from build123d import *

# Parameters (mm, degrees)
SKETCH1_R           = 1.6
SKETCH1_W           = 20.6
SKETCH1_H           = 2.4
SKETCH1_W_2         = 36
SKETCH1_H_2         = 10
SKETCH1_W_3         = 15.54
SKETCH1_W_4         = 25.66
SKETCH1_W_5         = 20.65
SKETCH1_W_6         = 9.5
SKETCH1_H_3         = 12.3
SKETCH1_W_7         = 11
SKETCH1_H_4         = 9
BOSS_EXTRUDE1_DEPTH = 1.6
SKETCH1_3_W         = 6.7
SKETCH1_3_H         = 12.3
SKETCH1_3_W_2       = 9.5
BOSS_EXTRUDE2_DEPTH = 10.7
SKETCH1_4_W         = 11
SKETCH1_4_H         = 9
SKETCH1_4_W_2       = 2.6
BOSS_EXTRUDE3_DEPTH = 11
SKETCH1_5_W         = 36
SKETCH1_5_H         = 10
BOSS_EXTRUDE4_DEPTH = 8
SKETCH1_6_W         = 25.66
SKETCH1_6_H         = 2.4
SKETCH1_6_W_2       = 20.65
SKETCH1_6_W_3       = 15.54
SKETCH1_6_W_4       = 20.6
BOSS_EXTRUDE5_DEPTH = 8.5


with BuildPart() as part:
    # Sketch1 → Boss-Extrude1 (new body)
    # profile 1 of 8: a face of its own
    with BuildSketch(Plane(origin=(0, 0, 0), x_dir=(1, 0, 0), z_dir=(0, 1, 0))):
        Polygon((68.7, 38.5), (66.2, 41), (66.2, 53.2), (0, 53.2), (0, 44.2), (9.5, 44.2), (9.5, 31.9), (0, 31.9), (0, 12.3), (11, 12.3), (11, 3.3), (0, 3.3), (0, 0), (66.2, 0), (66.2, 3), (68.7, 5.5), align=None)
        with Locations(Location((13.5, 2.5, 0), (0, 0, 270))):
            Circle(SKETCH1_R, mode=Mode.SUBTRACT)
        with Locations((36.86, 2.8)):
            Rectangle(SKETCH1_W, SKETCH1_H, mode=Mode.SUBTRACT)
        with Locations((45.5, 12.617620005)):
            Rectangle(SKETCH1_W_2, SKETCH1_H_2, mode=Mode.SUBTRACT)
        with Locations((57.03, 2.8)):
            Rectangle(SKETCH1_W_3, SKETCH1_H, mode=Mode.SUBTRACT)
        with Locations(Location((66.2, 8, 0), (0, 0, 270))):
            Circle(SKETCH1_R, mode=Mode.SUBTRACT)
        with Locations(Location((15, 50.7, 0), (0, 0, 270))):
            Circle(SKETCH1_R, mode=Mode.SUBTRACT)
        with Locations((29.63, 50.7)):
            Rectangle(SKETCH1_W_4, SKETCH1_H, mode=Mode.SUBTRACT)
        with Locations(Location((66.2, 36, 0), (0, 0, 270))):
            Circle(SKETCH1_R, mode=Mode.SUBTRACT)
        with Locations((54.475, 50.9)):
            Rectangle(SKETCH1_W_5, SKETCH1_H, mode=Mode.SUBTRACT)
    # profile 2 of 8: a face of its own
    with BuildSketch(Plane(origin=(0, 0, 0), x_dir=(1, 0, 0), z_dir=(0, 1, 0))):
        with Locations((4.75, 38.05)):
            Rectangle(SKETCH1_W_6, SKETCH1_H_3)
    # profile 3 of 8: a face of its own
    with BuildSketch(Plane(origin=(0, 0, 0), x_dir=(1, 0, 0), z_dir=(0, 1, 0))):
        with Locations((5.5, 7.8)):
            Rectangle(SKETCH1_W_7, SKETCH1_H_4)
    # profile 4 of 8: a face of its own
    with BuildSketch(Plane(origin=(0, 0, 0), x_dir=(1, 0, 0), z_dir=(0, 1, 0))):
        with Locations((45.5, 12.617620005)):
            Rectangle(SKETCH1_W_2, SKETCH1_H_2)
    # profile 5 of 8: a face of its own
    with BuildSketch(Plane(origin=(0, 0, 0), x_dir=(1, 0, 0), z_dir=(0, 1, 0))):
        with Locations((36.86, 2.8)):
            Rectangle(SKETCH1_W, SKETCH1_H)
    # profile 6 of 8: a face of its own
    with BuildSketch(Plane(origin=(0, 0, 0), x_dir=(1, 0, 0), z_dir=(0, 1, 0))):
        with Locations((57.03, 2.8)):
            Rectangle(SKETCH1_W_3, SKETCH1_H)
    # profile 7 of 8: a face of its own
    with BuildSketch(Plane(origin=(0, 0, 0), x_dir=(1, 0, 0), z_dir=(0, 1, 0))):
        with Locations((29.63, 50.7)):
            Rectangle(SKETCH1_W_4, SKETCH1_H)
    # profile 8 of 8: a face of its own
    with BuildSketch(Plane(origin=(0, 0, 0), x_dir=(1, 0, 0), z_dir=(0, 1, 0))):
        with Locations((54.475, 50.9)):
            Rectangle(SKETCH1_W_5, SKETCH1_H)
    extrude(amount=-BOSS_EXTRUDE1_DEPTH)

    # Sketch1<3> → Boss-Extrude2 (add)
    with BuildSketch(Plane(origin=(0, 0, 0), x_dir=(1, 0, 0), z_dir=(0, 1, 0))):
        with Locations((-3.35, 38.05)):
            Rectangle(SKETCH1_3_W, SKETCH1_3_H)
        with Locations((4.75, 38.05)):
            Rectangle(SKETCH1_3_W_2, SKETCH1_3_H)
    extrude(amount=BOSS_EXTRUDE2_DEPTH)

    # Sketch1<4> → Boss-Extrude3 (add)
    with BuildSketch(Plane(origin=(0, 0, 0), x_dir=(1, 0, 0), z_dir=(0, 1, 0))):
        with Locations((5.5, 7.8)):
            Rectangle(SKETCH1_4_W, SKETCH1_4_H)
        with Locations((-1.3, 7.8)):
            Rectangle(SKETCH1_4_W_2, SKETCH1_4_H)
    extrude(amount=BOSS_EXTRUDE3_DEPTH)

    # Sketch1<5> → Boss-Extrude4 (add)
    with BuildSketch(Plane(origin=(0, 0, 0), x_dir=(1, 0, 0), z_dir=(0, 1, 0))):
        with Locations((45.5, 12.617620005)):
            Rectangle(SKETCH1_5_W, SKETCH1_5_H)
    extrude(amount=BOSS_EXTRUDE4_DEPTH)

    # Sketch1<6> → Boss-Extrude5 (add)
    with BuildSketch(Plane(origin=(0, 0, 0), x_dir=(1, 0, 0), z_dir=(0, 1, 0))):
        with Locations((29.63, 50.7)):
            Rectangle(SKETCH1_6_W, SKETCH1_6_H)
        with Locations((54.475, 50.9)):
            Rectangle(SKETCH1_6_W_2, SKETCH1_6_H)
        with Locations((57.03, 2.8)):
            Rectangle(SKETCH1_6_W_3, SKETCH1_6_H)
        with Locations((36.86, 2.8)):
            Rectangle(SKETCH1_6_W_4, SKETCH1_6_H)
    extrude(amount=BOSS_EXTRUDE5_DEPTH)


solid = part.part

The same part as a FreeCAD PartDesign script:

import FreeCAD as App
import Part
import Sketcher
from FreeCAD import Vector
Q = App.Units.Quantity

doc = App.newDocument("Part")
body = doc.addObject("PartDesign::Body", "Body")

# Sketch on XZ plane
sketch1 = doc.addObject("Sketcher::SketchObject", "Sketch")
body.addObject(sketch1)
sketch1.AttachmentSupport = (doc.XZ_Plane, [""])
sketch1.MapMode = "FlatFace"
sketch1.addGeometry([
    Part.LineSegment(Vector(68.7, -38.5, 0), Vector(66.2, -41, 0)),  # 0
    Part.LineSegment(Vector(66.2, -41, 0), Vector(66.2, -53.2, 0)),  # 1
    Part.LineSegment(Vector(66.2, -53.2, 0), Vector(0, -53.2, 0)),  # 2
    Part.LineSegment(Vector(0, -53.2, 0), Vector(0, 0, 0)),  # 3
    Part.LineSegment(Vector(0, 0, 0), Vector(66.2, 0, 0)),  # 4
    Part.LineSegment(Vector(66.2, 0, 0), Vector(66.2, -3, 0)),  # 5
    Part.LineSegment(Vector(66.2, -3, 0), Vector(68.7, -5.5, 0)),  # 6
    Part.LineSegment(Vector(68.7, -5.5, 0), Vector(68.7, -38.5, 0)),  # 7
    Part.Circle(Vector(13.5, -2.5, 0), Vector(0, 0, 1), 1.6),  # 8
    Part.Circle(Vector(66.2, -8, 0), Vector(0, 0, 1), 1.6),  # 9
    Part.Circle(Vector(15, -50.7, 0), Vector(0, 0, 1), 1.6),  # 10
    Part.Circle(Vector(66.2, -36, 0), Vector(0, 0, 1), 1.6),  # 11
], False)
sketch1.addConstraint([
    Sketcher.Constraint("Coincident", 0, 2, 1, 1),
    Sketcher.Constraint("Coincident", 1, 2, 2, 1),
    Sketcher.Constraint("Coincident", 2, 2, 3, 1),
    Sketcher.Constraint("Coincident", 3, 2, 4, 1),
    Sketcher.Constraint("Coincident", 4, 2, 5, 1),
    Sketcher.Constraint("Coincident", 5, 2, 6, 1),
    Sketcher.Constraint("Coincident", 6, 2, 7, 1),
    Sketcher.Constraint("Coincident", 7, 2, 0, 1),
    Sketcher.Constraint("Vertical", 1),
    Sketcher.Constraint("Horizontal", 2),
    Sketcher.Constraint("Vertical", 3),
    Sketcher.Constraint("Horizontal", 4),
    Sketcher.Constraint("Vertical", 5),
    Sketcher.Constraint("Vertical", 7),
    Sketcher.Constraint("Coincident", 3, 2, -1, 1),
    Sketcher.Constraint("Equal", 8, 9),
    Sketcher.Constraint("Equal", 9, 10),
    Sketcher.Constraint("Equal", 10, 11),
    Sketcher.Constraint("Perpendicular", 0, 6),
    Sketcher.Constraint("Vertical", 9, 3, 11, 3),
    Sketcher.Constraint("Vertical", 11, 3, 0, 2),
    Sketcher.Constraint("Vertical", 1, 2, 4, 2),
    Sketcher.Constraint("Equal", 0, 6),
    Sketcher.Constraint("Diameter", 8, Q("3.2 mm")),
    Sketcher.Constraint("DistanceY", 5, 2, 5, 1, Q("3 mm")),
    Sketcher.Constraint("DistanceY", 7, 2, 7, 1, Q("33 mm")),
    Sketcher.Constraint("DistanceX", 2, 2, 2, 1, Q("66.2 mm")),
    Sketcher.Constraint("DistanceY", 1, 2, 1, 1, Q("12.2 mm")),
    Sketcher.Constraint("DistanceY", 3, 1, 3, 2, Q("53.2 mm")),
    Sketcher.Constraint("DistanceY", 9, 3, -1, 1, Q("8 mm")),
    Sketcher.Constraint("DistanceX", -1, 1, 10, 3, Q("15 mm")),
    Sketcher.Constraint("DistanceY", 11, 3, -1, 1, Q("36 mm")),
    Sketcher.Constraint("DistanceX", -1, 1, 8, 3, Q("13.5 mm")),
    Sketcher.Constraint("DistanceY", 8, 3, -1, 1, Q("2.5 mm")),
    Sketcher.Constraint("DistanceY", 10, 3, -1, 1, Q("50.7 mm")),
])
pad1 = doc.addObject("PartDesign::Pad", "Pad")
body.addObject(pad1)
pad1.Profile = sketch1
pad1.Length = 1.6

# Sketch on XZ plane
sketch2 = doc.addObject("Sketcher::SketchObject", "Sketch001")
body.addObject(sketch2)
sketch2.AttachmentSupport = (doc.XZ_Plane, [""])
sketch2.MapMode = "FlatFace"
sketch2.addGeometry([
    Part.LineSegment(Vector(-7, -44, 0), Vector(-7, -32, 0)),
    Part.LineSegment(Vector(-7, -32, 0), Vector(10, -32, 0)),
    Part.LineSegment(Vector(10, -32, 0), Vector(10, -44, 0)),
    Part.LineSegment(Vector(10, -44, 0), Vector(-7, -44, 0)),
], False)
sketch2.addConstraint([
    Sketcher.Constraint("Coincident", 0, 2, 1, 1),
    Sketcher.Constraint("Coincident", 1, 2, 2, 1),
    Sketcher.Constraint("Coincident", 2, 2, 3, 1),
    Sketcher.Constraint("Coincident", 3, 2, 0, 1),
    Sketcher.Constraint("Vertical", 0),
    Sketcher.Constraint("Horizontal", 1),
    Sketcher.Constraint("Vertical", 2),
    Sketcher.Constraint("Horizontal", 3),
    Sketcher.Constraint("DistanceX", 1, 1, 1, 2, Q("16.2 mm")),
    Sketcher.Constraint("DistanceY", 0, 1, 0, 2, Q("12.3 mm")),
    Sketcher.Constraint("DistanceX", 0, 2, -1, 1, Q("6.7 mm")),
    Sketcher.Constraint("DistanceY", 0, 2, -1, 1, Q("31.9 mm")),
])
pad2 = doc.addObject("PartDesign::Pad", "Pad001")
body.addObject(pad2)
pad2.Profile = sketch2
pad2.Length = 10.7
pad2.Reversed = True

# Sketch on XZ plane
sketch3 = doc.addObject("Sketcher::SketchObject", "Sketch002")
body.addObject(sketch3)
sketch3.AttachmentSupport = (doc.XZ_Plane, [""])
sketch3.MapMode = "FlatFace"
sketch3.addGeometry([
    Part.LineSegment(Vector(11, -3, 0), Vector(11, -12, 0)),
    Part.LineSegment(Vector(11, -12, 0), Vector(-3, -12, 0)),
    Part.LineSegment(Vector(-3, -12, 0), Vector(-3, -3, 0)),
    Part.LineSegment(Vector(-3, -3, 0), Vector(11, -3, 0)),
], False)
sketch3.addConstraint([
    Sketcher.Constraint("Coincident", 0, 2, 1, 1),
    Sketcher.Constraint("Coincident", 1, 2, 2, 1),
    Sketcher.Constraint("Coincident", 2, 2, 3, 1),
    Sketcher.Constraint("Coincident", 3, 2, 0, 1),
    Sketcher.Constraint("Vertical", 0),
    Sketcher.Constraint("Horizontal", 1),
    Sketcher.Constraint("Vertical", 2),
    Sketcher.Constraint("Horizontal", 3),
    Sketcher.Constraint("DistanceY", 0, 2, 0, 1, Q("9 mm")),
    Sketcher.Constraint("DistanceX", 1, 2, 1, 1, Q("13.6 mm")),
    Sketcher.Constraint("DistanceX", -1, 1, 0, 2, Q("11 mm")),
    Sketcher.Constraint("DistanceY", 0, 2, -1, 1, Q("12.3 mm")),
])
pad3 = doc.addObject("PartDesign::Pad", "Pad002")
body.addObject(pad3)
pad3.Profile = sketch3
pad3.Length = 11
pad3.Reversed = True

# Sketch on XZ plane
sketch4 = doc.addObject("Sketcher::SketchObject", "Sketch003")
body.addObject(sketch4)
sketch4.AttachmentSupport = (doc.XZ_Plane, [""])
sketch4.MapMode = "FlatFace"
sketch4.addGeometry([
    Part.LineSegment(Vector(28, -18, 0), Vector(28, -8, 0)),
    Part.LineSegment(Vector(28, -8, 0), Vector(64, -8, 0)),
    Part.LineSegment(Vector(64, -8, 0), Vector(64, -18, 0)),
    Part.LineSegment(Vector(64, -18, 0), Vector(28, -18, 0)),
], False)
sketch4.addConstraint([
    Sketcher.Constraint("Coincident", 0, 2, 1, 1),
    Sketcher.Constraint("Coincident", 1, 2, 2, 1),
    Sketcher.Constraint("Coincident", 2, 2, 3, 1),
    Sketcher.Constraint("Coincident", 3, 2, 0, 1),
    Sketcher.Constraint("Vertical", 0),
    Sketcher.Constraint("Horizontal", 1),
    Sketcher.Constraint("Vertical", 2),
    Sketcher.Constraint("Horizontal", 3),
    Sketcher.Constraint("DistanceX", 1, 1, 1, 2, Q("36 mm")),
    Sketcher.Constraint("DistanceY", 0, 1, 0, 2, Q("10 mm")),
    Sketcher.Constraint("DistanceX", -1, 1, 0, 2, Q("27.5 mm")),
    Sketcher.Constraint("DistanceY", 0, 2, -1, 1, Q("7.61762 mm")),
])
pad4 = doc.addObject("PartDesign::Pad", "Pad003")
body.addObject(pad4)
pad4.Profile = sketch4
pad4.Length = 8
pad4.Reversed = True

# Sketch on XZ plane
sketch5 = doc.addObject("Sketcher::SketchObject", "Sketch004")
body.addObject(sketch5)
sketch5.AttachmentSupport = (doc.XZ_Plane, [""])
sketch5.MapMode = "FlatFace"
sketch5.addGeometry([
    Part.LineSegment(Vector(16.8, -51.9, 0), Vector(16.8, -49.5, 0)),  # 0
    Part.LineSegment(Vector(16.8, -49.5, 0), Vector(42.5, -49.5, 0)),  # 1
    Part.LineSegment(Vector(42.5, -49.5, 0), Vector(42.5, -51.9, 0)),  # 2
    Part.LineSegment(Vector(42.5, -51.9, 0), Vector(16.8, -51.9, 0)),  # 3
    Part.LineSegment(Vector(44.1, -52.1, 0), Vector(44.1, -49.7, 0)),  # 4
    Part.LineSegment(Vector(44.1, -49.7, 0), Vector(64.8, -49.7, 0)),  # 5
    Part.LineSegment(Vector(64.8, -49.7, 0), Vector(64.8, -52.1, 0)),  # 6
    Part.LineSegment(Vector(64.8, -52.1, 0), Vector(44.1, -52.1, 0)),  # 7
    Part.LineSegment(Vector(49.3, -4, 0), Vector(49.3, -1.6, 0)),  # 8
    Part.LineSegment(Vector(49.3, -1.6, 0), Vector(64.8, -1.6, 0)),  # 9
    Part.LineSegment(Vector(64.8, -1.6, 0), Vector(64.8, -4, 0)),  # 10
    Part.LineSegment(Vector(64.8, -4, 0), Vector(49.3, -4, 0)),  # 11
    Part.LineSegment(Vector(26.6, -4, 0), Vector(26.6, -1.6, 0)),  # 12
    Part.LineSegment(Vector(26.6, -1.6, 0), Vector(47.2, -1.6, 0)),  # 13
    Part.LineSegment(Vector(47.2, -1.6, 0), Vector(47.2, -4, 0)),  # 14
    Part.LineSegment(Vector(47.2, -4, 0), Vector(26.6, -4, 0)),  # 15
], False)
sketch5.addConstraint([
    Sketcher.Constraint("Coincident", 0, 2, 1, 1),
    Sketcher.Constraint("Coincident", 1, 2, 2, 1),
    Sketcher.Constraint("Coincident", 2, 2, 3, 1),
    Sketcher.Constraint("Coincident", 3, 2, 0, 1),
    Sketcher.Constraint("Coincident", 4, 2, 5, 1),
    Sketcher.Constraint("Coincident", 5, 2, 6, 1),
    Sketcher.Constraint("Coincident", 6, 2, 7, 1),
    Sketcher.Constraint("Coincident", 7, 2, 4, 1),
    Sketcher.Constraint("Coincident", 8, 2, 9, 1),
    Sketcher.Constraint("Coincident", 9, 2, 10, 1),
    Sketcher.Constraint("Coincident", 10, 2, 11, 1),
    Sketcher.Constraint("Coincident", 11, 2, 8, 1),
    Sketcher.Constraint("Coincident", 12, 2, 13, 1),
    Sketcher.Constraint("Coincident", 13, 2, 14, 1),
    Sketcher.Constraint("Coincident", 14, 2, 15, 1),
    Sketcher.Constraint("Coincident", 15, 2, 12, 1),
    Sketcher.Constraint("Vertical", 0),
    Sketcher.Constraint("Horizontal", 1),
    Sketcher.Constraint("Vertical", 2),
    Sketcher.Constraint("Horizontal", 3),
    Sketcher.Constraint("Vertical", 4),
    Sketcher.Constraint("Horizontal", 5),
    Sketcher.Constraint("Vertical", 6),
    Sketcher.Constraint("Horizontal", 7),
    Sketcher.Constraint("Vertical", 8),
    Sketcher.Constraint("Horizontal", 9),
    Sketcher.Constraint("Vertical", 10),
    Sketcher.Constraint("Horizontal", 11),
    Sketcher.Constraint("Vertical", 12),
    Sketcher.Constraint("Horizontal", 13),
    Sketcher.Constraint("Vertical", 14),
    Sketcher.Constraint("Horizontal", 15),
    Sketcher.Constraint("Horizontal", 9, 2, 12, 2),
    Sketcher.Constraint("Horizontal", 11, 2, 14, 2),
    Sketcher.Constraint("Vertical", 6, 2, 9, 2),
    Sketcher.Constraint("Equal", 2, 4),
    Sketcher.Constraint("Equal", 6, 8),
    Sketcher.Constraint("DistanceX", 13, 1, 13, 2, Q("20.6 mm")),
    Sketcher.Constraint("DistanceY", 0, 1, 0, 2, Q("2.4 mm")),
    Sketcher.Constraint("DistanceY", 10, 2, -1, 1, Q("4 mm")),
    Sketcher.Constraint("DistanceX", 0, 2, 5, 2, Q("48 mm")),
    Sketcher.Constraint("DistanceX", 1, 1, 1, 2, Q("25.66 mm")),
    Sketcher.Constraint("DistanceX", 5, 1, 5, 2, Q("20.65 mm")),
    Sketcher.Constraint("DistanceX", 9, 1, 9, 2, Q("15.54 mm")),
    Sketcher.Constraint("DistanceX", -1, 1, 0, 2, Q("16.8 mm")),
    Sketcher.Constraint("DistanceY", 0, 2, -1, 1, Q("49.5 mm")),
    Sketcher.Constraint("DistanceY", 4, 2, -1, 1, Q("49.7 mm")),
    Sketcher.Constraint("DistanceX", 12, 2, 8, 2, Q("22.7 mm")),
])
pad5 = doc.addObject("PartDesign::Pad", "Pad004")
body.addObject(pad5)
pad5.Profile = sketch5
pad5.Length = 8.5
pad5.Reversed = True

doc.recompute()
